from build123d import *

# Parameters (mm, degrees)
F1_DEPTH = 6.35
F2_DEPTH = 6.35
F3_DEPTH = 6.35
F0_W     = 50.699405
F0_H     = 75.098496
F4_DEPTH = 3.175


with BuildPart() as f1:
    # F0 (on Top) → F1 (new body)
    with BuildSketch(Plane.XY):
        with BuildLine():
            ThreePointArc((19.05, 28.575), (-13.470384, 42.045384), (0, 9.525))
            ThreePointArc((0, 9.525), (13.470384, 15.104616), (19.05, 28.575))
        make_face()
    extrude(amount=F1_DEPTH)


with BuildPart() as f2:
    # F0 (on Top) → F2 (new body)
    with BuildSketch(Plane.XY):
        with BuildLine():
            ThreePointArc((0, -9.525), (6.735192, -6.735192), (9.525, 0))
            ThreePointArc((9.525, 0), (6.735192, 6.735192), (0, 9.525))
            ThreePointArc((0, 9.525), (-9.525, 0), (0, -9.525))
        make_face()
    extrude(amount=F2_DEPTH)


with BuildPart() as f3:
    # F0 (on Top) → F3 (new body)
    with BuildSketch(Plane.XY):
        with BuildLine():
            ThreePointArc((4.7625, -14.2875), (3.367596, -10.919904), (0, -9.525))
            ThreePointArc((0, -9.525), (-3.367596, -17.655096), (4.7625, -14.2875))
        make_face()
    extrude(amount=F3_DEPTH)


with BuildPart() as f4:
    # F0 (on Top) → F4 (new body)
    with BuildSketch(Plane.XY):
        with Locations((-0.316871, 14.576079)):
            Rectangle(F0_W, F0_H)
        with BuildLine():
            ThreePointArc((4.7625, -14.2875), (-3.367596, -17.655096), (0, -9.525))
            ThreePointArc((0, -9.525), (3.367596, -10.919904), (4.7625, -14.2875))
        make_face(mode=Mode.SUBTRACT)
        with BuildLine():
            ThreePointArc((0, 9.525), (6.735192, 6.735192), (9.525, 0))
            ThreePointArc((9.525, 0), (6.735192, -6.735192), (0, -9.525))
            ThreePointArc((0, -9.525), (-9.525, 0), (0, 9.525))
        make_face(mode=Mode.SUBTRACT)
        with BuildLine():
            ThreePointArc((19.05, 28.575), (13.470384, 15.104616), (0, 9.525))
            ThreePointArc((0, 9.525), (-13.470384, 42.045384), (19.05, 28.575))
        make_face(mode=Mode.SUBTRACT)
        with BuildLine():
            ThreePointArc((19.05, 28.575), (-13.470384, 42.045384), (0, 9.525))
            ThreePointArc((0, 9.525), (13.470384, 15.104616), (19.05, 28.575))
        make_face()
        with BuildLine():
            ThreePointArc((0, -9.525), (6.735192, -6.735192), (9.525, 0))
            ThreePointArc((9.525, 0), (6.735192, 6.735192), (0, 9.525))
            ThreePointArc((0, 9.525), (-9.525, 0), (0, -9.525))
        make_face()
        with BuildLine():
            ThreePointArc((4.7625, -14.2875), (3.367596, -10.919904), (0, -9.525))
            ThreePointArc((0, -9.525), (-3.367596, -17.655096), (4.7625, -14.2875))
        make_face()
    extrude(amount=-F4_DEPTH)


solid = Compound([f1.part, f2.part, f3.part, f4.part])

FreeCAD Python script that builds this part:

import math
import FreeCAD as App
import Part
import Sketcher
Q = App.Units.Quantity


def add_polygon(sketch, points):
    """Adds a closed chain of lines whose ends are joined by coincident constraints."""
    first, n = sketch.GeometryCount, len(points)
    for a, b in zip(points, points[1:] + points[:1]):
        sketch.addGeometry(Part.LineSegment(App.Vector(*a, 0), App.Vector(*b, 0)), False)
    for i in range(n):
        sketch.addConstraint(Sketcher.Constraint("Coincident", first + i, 2, first + (i + 1) % n, 1))

doc = App.newDocument("Part")
body = doc.addObject("PartDesign::Body", "Body")

# Sketch on XY plane
sketch1 = body.newObject("Sketcher::SketchObject", "Sketch")
sketch1.AttachmentSupport = (doc.getObject("XY_Plane"), [""])
sketch1.MapMode = "FlatFace"
sketch1.addGeometry(Part.ArcOfCircle(Part.Circle(App.Vector(0, 29, 0), App.Vector(0, 0, 1), 19), math.radians(0), math.radians(270)), False)
sketch1.addGeometry(Part.ArcOfCircle(Part.Circle(App.Vector(0, 29, 0), App.Vector(0, 0, 1), 19), math.radians(-90), math.radians(0)), False)
sketch1.addConstraint(Sketcher.Constraint("Tangent", 0, 1, 1, 2))
sketch1.addConstraint(Sketcher.Constraint("Coincident", 1, 1, 0, 2))
sketch1.addConstraint(Sketcher.Constraint("PointOnObject", 0, 3, -2))
sketch1.addConstraint(Sketcher.Constraint("PointOnObject", 1, 1, -2))
sketch1.addConstraint(Sketcher.Constraint("Horizontal", 1, 3, 0, 1))
sketch1.addConstraint(Sketcher.Constraint("Radius", 0, Q("0.75 in")))
sketch1.addConstraint(Sketcher.Constraint("DistanceY", -1, 1, 0, 3, Q("1.125 in")))
pad1 = body.newObject("PartDesign::Pad", "Pad")
pad1.Profile = sketch1
pad1.Length = Q("0.25 in")
body2 = doc.addObject("PartDesign::Body", "Body001")

# Sketch on XY plane
sketch2 = body2.newObject("Sketcher::SketchObject", "Sketch001")
sketch2.AttachmentSupport = (doc.getObject("XY_Plane001"), [""])
sketch2.MapMode = "FlatFace"
sketch2.addGeometry(Part.ArcOfCircle(Part.Circle(App.Vector(0, 0, 0), App.Vector(0, 0, 1), 10), math.radians(-90), math.radians(0)), False)
sketch2.addGeometry(Part.ArcOfCircle(Part.Circle(App.Vector(0, 0, 0), App.Vector(0, 0, 1), 10), math.radians(0), math.radians(90)), False)
sketch2.addGeometry(Part.ArcOfCircle(Part.Circle(App.Vector(0, 0, 0), App.Vector(0, 0, 1), 10), math.radians(90), math.radians(270)), False)
sketch2.addConstraint(Sketcher.Constraint("Tangent", 0, 2, 1, 1))
sketch2.addConstraint(Sketcher.Constraint("Tangent", 1, 2, 2, 1))
sketch2.addConstraint(Sketcher.Constraint("Tangent", 2, 2, 0, 1))
sketch2.addConstraint(Sketcher.Constraint("Coincident", 0, 3, -1, 1))
sketch2.addConstraint(Sketcher.Constraint("PointOnObject", 0, 2, -1))
sketch2.addConstraint(Sketcher.Constraint("PointOnObject", 1, 2, -2))
sketch2.addConstraint(Sketcher.Constraint("PointOnObject", 2, 2, -2))
sketch2.addConstraint(Sketcher.Constraint("Radius", 0, Q("0.375 in")))
pad2 = body2.newObject("PartDesign::Pad", "Pad001")
pad2.Profile = sketch2
pad2.Length = Q("0.25 in")
body3 = doc.addObject("PartDesign::Body", "Body002")

# Sketch on XY plane
sketch3 = body3.newObject("Sketcher::SketchObject", "Sketch002")
sketch3.AttachmentSupport = (doc.getObject("XY_Plane002"), [""])
sketch3.MapMode = "FlatFace"
sketch3.addGeometry(Part.ArcOfCircle(Part.Circle(App.Vector(0, -14.3, 0), App.Vector(0, 0, 1), 4.8), math.radians(0), math.radians(90)), False)
sketch3.addGeometry(Part.ArcOfCircle(Part.Circle(App.Vector(0, -14.3, 0), App.Vector(0, 0, 1), 4.8), math.radians(90), math.radians(360)), False)
sketch3.addConstraint(Sketcher.Constraint("Tangent", 0, 1, 1, 2))
sketch3.addConstraint(Sketcher.Constraint("Coincident", 1, 1, 0, 2))
sketch3.addConstraint(Sketcher.Constraint("PointOnObject", 0, 3, -2))
sketch3.addConstraint(Sketcher.Constraint("PointOnObject", 1, 1, -2))
sketch3.addConstraint(Sketcher.Constraint("Horizontal", 1, 3, 0, 1))
sketch3.addConstraint(Sketcher.Constraint("Radius", 0, Q("0.1875 in")))
sketch3.addConstraint(Sketcher.Constraint("DistanceY", 0, 3, -1, 1, Q("0.5625 in")))
pad3 = body3.newObject("PartDesign::Pad", "Pad002")
pad3.Profile = sketch3
pad3.Length = Q("0.25 in")
body4 = doc.addObject("PartDesign::Body", "Body003")

# Sketch on XY plane
sketch4 = body4.newObject("Sketcher::SketchObject", "Sketch003")
sketch4.AttachmentSupport = (doc.getObject("XY_Plane003"), [""])
sketch4.MapMode = "FlatFace"
add_polygon(sketch4, [(-26, 52), (-26, -23), (25, -23), (25, 52)])  # lines 0-3
sketch4.addConstraint(Sketcher.Constraint("Vertical", 0))
sketch4.addConstraint(Sketcher.Constraint("Horizontal", 1))
sketch4.addConstraint(Sketcher.Constraint("Vertical", 2))
sketch4.addConstraint(Sketcher.Constraint("Horizontal", 3))
sketch4.addConstraint(Sketcher.Constraint("DistanceX", 1, 1, 1, 2, 50.699405))
sketch4.addConstraint(Sketcher.Constraint("DistanceY", 0, 2, 0, 1, 75.098496))
sketch4.addConstraint(Sketcher.Constraint("DistanceY", 0, 2, -1, 1, 22.973169))
sketch4.addConstraint(Sketcher.Constraint("DistanceX", -1, 1, 1, 2, 25.032832))
pad4 = body4.newObject("PartDesign::Pad", "Pad003")
pad4.Profile = sketch4
pad4.Length = Q("0.125 in")
pad4.Reversed = True

doc.recompute()
